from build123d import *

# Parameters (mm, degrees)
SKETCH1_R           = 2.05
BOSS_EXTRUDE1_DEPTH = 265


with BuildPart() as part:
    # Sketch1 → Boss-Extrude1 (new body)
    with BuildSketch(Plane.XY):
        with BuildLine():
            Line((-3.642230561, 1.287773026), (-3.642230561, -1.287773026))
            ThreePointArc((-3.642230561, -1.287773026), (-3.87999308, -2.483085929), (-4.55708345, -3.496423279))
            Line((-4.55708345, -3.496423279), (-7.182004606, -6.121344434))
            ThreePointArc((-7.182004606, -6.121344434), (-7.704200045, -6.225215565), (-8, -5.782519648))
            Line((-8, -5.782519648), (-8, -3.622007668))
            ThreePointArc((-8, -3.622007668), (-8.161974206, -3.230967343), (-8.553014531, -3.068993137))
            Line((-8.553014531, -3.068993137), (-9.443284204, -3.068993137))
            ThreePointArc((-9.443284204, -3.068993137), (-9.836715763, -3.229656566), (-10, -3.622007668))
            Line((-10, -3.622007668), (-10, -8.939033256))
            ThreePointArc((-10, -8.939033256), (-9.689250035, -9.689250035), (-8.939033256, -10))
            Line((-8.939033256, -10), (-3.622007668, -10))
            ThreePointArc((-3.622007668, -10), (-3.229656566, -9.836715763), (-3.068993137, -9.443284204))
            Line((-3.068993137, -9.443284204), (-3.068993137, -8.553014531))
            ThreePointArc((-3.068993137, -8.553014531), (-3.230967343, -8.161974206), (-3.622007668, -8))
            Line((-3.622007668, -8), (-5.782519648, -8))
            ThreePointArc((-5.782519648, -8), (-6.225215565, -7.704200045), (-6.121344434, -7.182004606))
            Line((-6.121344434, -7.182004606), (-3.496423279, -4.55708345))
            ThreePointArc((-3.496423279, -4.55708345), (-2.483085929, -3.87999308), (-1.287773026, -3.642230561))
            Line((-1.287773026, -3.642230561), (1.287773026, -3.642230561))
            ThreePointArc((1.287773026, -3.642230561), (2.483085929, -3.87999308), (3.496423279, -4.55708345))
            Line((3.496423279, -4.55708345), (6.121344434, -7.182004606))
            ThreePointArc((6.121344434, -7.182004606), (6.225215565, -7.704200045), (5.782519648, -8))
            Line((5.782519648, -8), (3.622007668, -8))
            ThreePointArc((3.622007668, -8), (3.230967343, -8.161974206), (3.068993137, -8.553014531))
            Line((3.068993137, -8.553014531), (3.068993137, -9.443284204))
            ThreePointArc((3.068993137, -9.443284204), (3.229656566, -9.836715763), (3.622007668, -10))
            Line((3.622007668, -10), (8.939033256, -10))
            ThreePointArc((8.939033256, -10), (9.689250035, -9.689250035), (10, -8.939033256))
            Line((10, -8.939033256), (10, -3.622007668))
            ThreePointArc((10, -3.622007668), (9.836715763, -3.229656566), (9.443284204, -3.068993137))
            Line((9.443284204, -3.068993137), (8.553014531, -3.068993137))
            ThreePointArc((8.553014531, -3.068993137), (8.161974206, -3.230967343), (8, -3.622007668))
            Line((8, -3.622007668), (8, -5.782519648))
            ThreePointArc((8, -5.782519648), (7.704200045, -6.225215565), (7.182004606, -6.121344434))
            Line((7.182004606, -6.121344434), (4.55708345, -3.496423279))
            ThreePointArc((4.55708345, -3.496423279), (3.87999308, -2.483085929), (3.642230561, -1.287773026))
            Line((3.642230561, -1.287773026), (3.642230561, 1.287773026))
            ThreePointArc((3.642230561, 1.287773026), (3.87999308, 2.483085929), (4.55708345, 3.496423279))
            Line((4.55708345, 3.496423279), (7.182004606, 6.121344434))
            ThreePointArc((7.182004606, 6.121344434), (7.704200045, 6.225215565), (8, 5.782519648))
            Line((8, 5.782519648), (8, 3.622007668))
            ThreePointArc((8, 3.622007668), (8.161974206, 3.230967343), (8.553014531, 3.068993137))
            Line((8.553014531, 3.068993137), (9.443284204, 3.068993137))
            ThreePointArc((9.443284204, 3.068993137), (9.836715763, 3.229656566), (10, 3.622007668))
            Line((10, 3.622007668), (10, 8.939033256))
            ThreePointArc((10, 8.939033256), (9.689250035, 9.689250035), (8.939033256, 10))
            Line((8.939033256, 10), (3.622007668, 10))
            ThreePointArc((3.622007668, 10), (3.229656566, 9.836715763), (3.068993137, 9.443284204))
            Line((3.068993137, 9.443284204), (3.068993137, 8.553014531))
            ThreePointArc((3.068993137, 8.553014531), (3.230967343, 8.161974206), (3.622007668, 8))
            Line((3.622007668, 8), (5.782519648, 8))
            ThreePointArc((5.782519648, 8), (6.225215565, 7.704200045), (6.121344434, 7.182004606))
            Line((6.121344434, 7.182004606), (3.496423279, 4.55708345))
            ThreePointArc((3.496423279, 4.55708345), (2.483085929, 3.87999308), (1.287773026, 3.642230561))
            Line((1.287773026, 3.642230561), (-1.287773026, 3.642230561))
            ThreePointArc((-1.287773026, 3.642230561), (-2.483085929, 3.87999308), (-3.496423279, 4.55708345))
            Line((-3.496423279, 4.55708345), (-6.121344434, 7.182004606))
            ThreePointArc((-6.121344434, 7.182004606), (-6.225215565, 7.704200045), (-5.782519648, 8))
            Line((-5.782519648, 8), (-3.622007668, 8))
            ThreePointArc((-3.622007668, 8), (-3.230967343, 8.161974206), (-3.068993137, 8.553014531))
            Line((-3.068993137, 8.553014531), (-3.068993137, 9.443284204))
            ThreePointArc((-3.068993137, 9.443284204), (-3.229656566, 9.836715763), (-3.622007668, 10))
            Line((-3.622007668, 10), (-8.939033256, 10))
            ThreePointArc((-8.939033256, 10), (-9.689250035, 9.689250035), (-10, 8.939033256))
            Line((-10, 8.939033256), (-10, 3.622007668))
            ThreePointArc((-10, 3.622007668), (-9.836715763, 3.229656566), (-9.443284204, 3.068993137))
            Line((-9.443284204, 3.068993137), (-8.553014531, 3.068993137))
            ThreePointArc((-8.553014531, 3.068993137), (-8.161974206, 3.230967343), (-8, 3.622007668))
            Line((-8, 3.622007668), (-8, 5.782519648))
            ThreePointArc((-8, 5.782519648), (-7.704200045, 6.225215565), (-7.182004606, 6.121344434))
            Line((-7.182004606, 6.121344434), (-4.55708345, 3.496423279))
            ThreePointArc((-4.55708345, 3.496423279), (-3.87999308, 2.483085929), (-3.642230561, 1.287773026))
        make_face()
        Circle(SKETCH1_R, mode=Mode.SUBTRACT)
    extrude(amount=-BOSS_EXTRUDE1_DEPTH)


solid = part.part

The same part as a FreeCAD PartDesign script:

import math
import FreeCAD as App
import Part
import Sketcher
from FreeCAD import Vector

doc = App.newDocument("Part")
params = doc.addObject("Spreadsheet::Sheet", "Params")
for row, (alias, value) in enumerate([
    ("sketch1_diameter", "4.1 mm"),
    ("pad1_length", "265 mm"),
], start=1):
    params.set(f"A{row}", alias)
    params.set(f"B{row}", "=" + value)
    params.setAlias(f"B{row}", alias)

body = doc.addObject("PartDesign::Body", "Body")

sketch1 = body.newObject("Sketcher::SketchObject", "Sketch")
sketch1.AttachmentSupport = (doc.getObject("XY_Plane"), [""])
sketch1.MapMode = "FlatFace"
sketch1.addGeometry(Part.LineSegment(Vector(-3.642231, 1.287773, 0), Vector(-3.642231, -1.287773, 0)), False)
sketch1.addGeometry(Part.ArcOfCircle(Part.Circle(Vector(-6.765734, -1.287773, 0), Vector(0, 0, 1), 3.123503), math.radians(-45), math.radians(0)), False)
sketch1.addGeometry(Part.LineSegment(Vector(-4.557083, -3.496423, 0), Vector(-7.182005, -6.121344, 0)), False)
sketch1.addGeometry(Part.ArcOfCircle(Part.Circle(Vector(-7.520829, -5.78252, 0), Vector(0, 0, 1), 0.479171), math.radians(180), math.radians(315)), False)
sketch1.addGeometry(Part.LineSegment(Vector(-8, -5.78252, 0), Vector(-8, -3.622008, 0)), False)
sketch1.addGeometry(Part.ArcOfCircle(Part.Circle(Vector(-8.553015, -3.622008, 0), Vector(0, 0, 1), 0.553015), math.radians(0), math.radians(90)), False)
sketch1.addGeometry(Part.LineSegment(Vector(-8.553015, -3.068993, 0), Vector(-9.443284, -3.068993, 0)), False)
sketch1.addGeometry(Part.ArcOfCircle(Part.Circle(Vector(-9.446973, -3.622008, 0), Vector(0, 0, 1), 0.553027), math.radians(89.617806), math.radians(180)), False)
sketch1.addGeometry(Part.LineSegment(Vector(-10, -3.622008, 0), Vector(-10, -8.939033, 0)), False)
sketch1.addGeometry(Part.ArcOfCircle(Part.Circle(Vector(-8.939033, -8.939033, 0), Vector(0, 0, 1), 1.060967), math.radians(-180), math.radians(-90)), False)
sketch1.addGeometry(Part.LineSegment(Vector(-8.939033, -10, 0), Vector(-3.622008, -10, 0)), False)
sketch1.addGeometry(Part.ArcOfCircle(Part.Circle(Vector(-3.622008, -9.446973, 0), Vector(0, 0, 1), 0.553027), math.radians(-90), math.radians(0.382194)), False)
sketch1.addGeometry(Part.LineSegment(Vector(-3.068993, -9.443284, 0), Vector(-3.068993, -8.553015, 0)), False)
sketch1.addGeometry(Part.ArcOfCircle(Part.Circle(Vector(-3.622008, -8.553015, 0), Vector(0, 0, 1), 0.553015), math.radians(0), math.radians(90)), False)
sketch1.addGeometry(Part.LineSegment(Vector(-3.622008, -8, 0), Vector(-5.78252, -8, 0)), False)
sketch1.addGeometry(Part.ArcOfCircle(Part.Circle(Vector(-5.78252, -7.520829, 0), Vector(0, 0, 1), 0.479171), math.radians(135), math.radians(270)), False)
sketch1.addGeometry(Part.LineSegment(Vector(-6.121344, -7.182005, 0), Vector(-3.496423, -4.557083, 0)), False)
sketch1.addGeometry(Part.ArcOfCircle(Part.Circle(Vector(-1.287773, -6.765734, 0), Vector(0, 0, 1), 3.123503), math.radians(90), math.radians(135)), False)
sketch1.addGeometry(Part.LineSegment(Vector(-1.287773, -3.642231, 0), Vector(1.287773, -3.642231, 0)), False)
sketch1.addGeometry(Part.ArcOfCircle(Part.Circle(Vector(1.287773, -6.765734, 0), Vector(0, 0, 1), 3.123503), math.radians(45), math.radians(90)), False)
sketch1.addGeometry(Part.LineSegment(Vector(3.496423, -4.557083, 0), Vector(6.121344, -7.182005, 0)), False)
sketch1.addGeometry(Part.ArcOfCircle(Part.Circle(Vector(5.78252, -7.520829, 0), Vector(0, 0, 1), 0.479171), math.radians(-90), math.radians(45)), False)
sketch1.addGeometry(Part.LineSegment(Vector(5.78252, -8, 0), Vector(3.622008, -8, 0)), False)
sketch1.addGeometry(Part.ArcOfCircle(Part.Circle(Vector(3.622008, -8.553015, 0), Vector(0, 0, 1), 0.553015), math.radians(90), math.radians(180)), False)
sketch1.addGeometry(Part.LineSegment(Vector(3.068993, -8.553015, 0), Vector(3.068993, -9.443284, 0)), False)
sketch1.addGeometry(Part.ArcOfCircle(Part.Circle(Vector(3.622008, -9.446973, 0), Vector(0, 0, 1), 0.553027), math.radians(179.617806), math.radians(270)), False)
sketch1.addGeometry(Part.LineSegment(Vector(3.622008, -10, 0), Vector(8.939033, -10, 0)), False)
sketch1.addGeometry(Part.ArcOfCircle(Part.Circle(Vector(8.939033, -8.939033, 0), Vector(0, 0, 1), 1.060967), math.radians(-90), math.radians(0)), False)
sketch1.addGeometry(Part.LineSegment(Vector(10, -8.939033, 0), Vector(10, -3.622008, 0)), False)
sketch1.addGeometry(Part.ArcOfCircle(Part.Circle(Vector(9.446973, -3.622008, 0), Vector(0, 0, 1), 0.553027), math.radians(0), math.radians(90.382194)), False)
sketch1.addGeometry(Part.LineSegment(Vector(9.443284, -3.068993, 0), Vector(8.553015, -3.068993, 0)), False)
sketch1.addGeometry(Part.ArcOfCircle(Part.Circle(Vector(8.553015, -3.622008, 0), Vector(0, 0, 1), 0.553015), math.radians(90), math.radians(180)), False)
sketch1.addGeometry(Part.LineSegment(Vector(8, -3.622008, 0), Vector(8, -5.78252, 0)), False)
sketch1.addGeometry(Part.ArcOfCircle(Part.Circle(Vector(7.520829, -5.78252, 0), Vector(0, 0, 1), 0.479171), math.radians(-135), math.radians(0)), False)
sketch1.addGeometry(Part.LineSegment(Vector(7.182005, -6.121344, 0), Vector(4.557083, -3.496423, 0)), False)
sketch1.addGeometry(Part.ArcOfCircle(Part.Circle(Vector(6.765734, -1.287773, 0), Vector(0, 0, 1), 3.123503), math.radians(180), math.radians(225)), False)
sketch1.addGeometry(Part.LineSegment(Vector(3.642231, -1.287773, 0), Vector(3.642231, 1.287773, 0)), False)
sketch1.addGeometry(Part.ArcOfCircle(Part.Circle(Vector(6.765734, 1.287773, 0), Vector(0, 0, 1), 3.123503), math.radians(135), math.radians(180)), False)
sketch1.addGeometry(Part.LineSegment(Vector(4.557083, 3.496423, 0), Vector(7.182005, 6.121344, 0)), False)
sketch1.addGeometry(Part.ArcOfCircle(Part.Circle(Vector(7.520829, 5.78252, 0), Vector(0, 0, 1), 0.479171), math.radians(0), math.radians(135)), False)
sketch1.addGeometry(Part.LineSegment(Vector(8, 5.78252, 0), Vector(8, 3.622008, 0)), False)
sketch1.addGeometry(Part.ArcOfCircle(Part.Circle(Vector(8.553015, 3.622008, 0), Vector(0, 0, 1), 0.553015), math.radians(180), math.radians(270)), False)
sketch1.addGeometry(Part.LineSegment(Vector(8.553015, 3.068993, 0), Vector(9.443284, 3.068993, 0)), False)
sketch1.addGeometry(Part.ArcOfCircle(Part.Circle(Vector(9.446973, 3.622008, 0), Vector(0, 0, 1), 0.553027), math.radians(-90.382194), math.radians(0)), False)
sketch1.addGeometry(Part.LineSegment(Vector(10, 3.622008, 0), Vector(10, 8.939033, 0)), False)
sketch1.addGeometry(Part.ArcOfCircle(Part.Circle(Vector(8.939033, 8.939033, 0), Vector(0, 0, 1), 1.060967), math.radians(0), math.radians(90)), False)
sketch1.addGeometry(Part.LineSegment(Vector(8.939033, 10, 0), Vector(3.622008, 10, 0)), False)
sketch1.addGeometry(Part.ArcOfCircle(Part.Circle(Vector(3.622008, 9.446973, 0), Vector(0, 0, 1), 0.553027), math.radians(90), math.radians(180.382194)), False)
sketch1.addGeometry(Part.LineSegment(Vector(3.068993, 9.443284, 0), Vector(3.068993, 8.553015, 0)), False)
sketch1.addGeometry(Part.ArcOfCircle(Part.Circle(Vector(3.622008, 8.553015, 0), Vector(0, 0, 1), 0.553015), math.radians(180), math.radians(270)), False)
sketch1.addGeometry(Part.LineSegment(Vector(3.622008, 8, 0), Vector(5.78252, 8, 0)), False)
sketch1.addGeometry(Part.ArcOfCircle(Part.Circle(Vector(5.78252, 7.520829, 0), Vector(0, 0, 1), 0.479171), math.radians(-45), math.radians(90)), False)
sketch1.addGeometry(Part.LineSegment(Vector(6.121344, 7.182005, 0), Vector(3.496423, 4.557083, 0)), False)
sketch1.addGeometry(Part.ArcOfCircle(Part.Circle(Vector(1.287773, 6.765734, 0), Vector(0, 0, 1), 3.123503), math.radians(-90), math.radians(-45)), False)
sketch1.addGeometry(Part.LineSegment(Vector(1.287773, 3.642231, 0), Vector(-1.287773, 3.642231, 0)), False)
sketch1.addGeometry(Part.ArcOfCircle(Part.Circle(Vector(-1.287773, 6.765734, 0), Vector(0, 0, 1), 3.123503), math.radians(-135), math.radians(-90)), False)
sketch1.addGeometry(Part.LineSegment(Vector(-3.496423, 4.557083, 0), Vector(-6.121344, 7.182005, 0)), False)
sketch1.addGeometry(Part.ArcOfCircle(Part.Circle(Vector(-5.78252, 7.520829, 0), Vector(0, 0, 1), 0.479171), math.radians(90), math.radians(225)), False)
sketch1.addGeometry(Part.LineSegment(Vector(-5.78252, 8, 0), Vector(-3.622008, 8, 0)), False)
sketch1.addGeometry(Part.ArcOfCircle(Part.Circle(Vector(-3.622008, 8.553015, 0), Vector(0, 0, 1), 0.553015), math.radians(-90), math.radians(0)), False)
sketch1.addGeometry(Part.LineSegment(Vector(-3.068993, 8.553015, 0), Vector(-3.068993, 9.443284, 0)), False)
sketch1.addGeometry(Part.ArcOfCircle(Part.Circle(Vector(-3.622008, 9.446973, 0), Vector(0, 0, 1), 0.553027), math.radians(-0.382194), math.radians(90)), False)
sketch1.addGeometry(Part.LineSegment(Vector(-3.622008, 10, 0), Vector(-8.939033, 10, 0)), False)
sketch1.addGeometry(Part.ArcOfCircle(Part.Circle(Vector(-8.939033, 8.939033, 0), Vector(0, 0, 1), 1.060967), math.radians(90), math.radians(180)), False)
sketch1.addGeometry(Part.LineSegment(Vector(-10, 8.939033, 0), Vector(-10, 3.622008, 0)), False)
sketch1.addGeometry(Part.ArcOfCircle(Part.Circle(Vector(-9.446973, 3.622008, 0), Vector(0, 0, 1), 0.553027), math.radians(180), math.radians(270.382194)), False)
sketch1.addGeometry(Part.LineSegment(Vector(-9.443284, 3.068993, 0), Vector(-8.553015, 3.068993, 0)), False)
sketch1.addGeometry(Part.ArcOfCircle(Part.Circle(Vector(-8.553015, 3.622008, 0), Vector(0, 0, 1), 0.553015), math.radians(-90), math.radians(0)), False)
sketch1.addGeometry(Part.LineSegment(Vector(-8, 3.622008, 0), Vector(-8, 5.78252, 0)), False)
sketch1.addGeometry(Part.ArcOfCircle(Part.Circle(Vector(-7.520829, 5.78252, 0), Vector(0, 0, 1), 0.479171), math.radians(45), math.radians(180)), False)
sketch1.addGeometry(Part.LineSegment(Vector(-7.182005, 6.121344, 0), Vector(-4.557083, 3.496423, 0)), False)
sketch1.addGeometry(Part.ArcOfCircle(Part.Circle(Vector(-6.765734, 1.287773, 0), Vector(0, 0, 1), 3.123503), math.radians(0), math.radians(45)), False)
sketch1.addGeometry(Part.Circle(Vector(0, 0, 0), Vector(0, 0, 1), 2.05), False)
sketch1.addConstraint(Sketcher.Constraint("Tangent", 0, 2, 1, 2))
sketch1.addConstraint(Sketcher.Constraint("Tangent", 1, 1, 2, 1))
sketch1.addConstraint(Sketcher.Constraint("Tangent", 2, 2, 3, 2))
sketch1.addConstraint(Sketcher.Constraint("Tangent", 3, 1, 4, 1))
sketch1.addConstraint(Sketcher.Constraint("Tangent", 4, 2, 5, 1))
sketch1.addConstraint(Sketcher.Constraint("Tangent", 5, 2, 6, 1))
sketch1.addConstraint(Sketcher.Constraint("Coincident", 6, 2, 7, 1))
sketch1.addConstraint(Sketcher.Constraint("Tangent", 7, 2, 8, 1))
sketch1.addConstraint(Sketcher.Constraint("Tangent", 8, 2, 9, 1))
sketch1.addConstraint(Sketcher.Constraint("Tangent", 9, 2, 10, 1))
sketch1.addConstraint(Sketcher.Constraint("Tangent", 10, 2, 11, 1))
sketch1.addConstraint(Sketcher.Constraint("Coincident", 11, 2, 12, 1))
sketch1.addConstraint(Sketcher.Constraint("Tangent", 12, 2, 13, 1))
sketch1.addConstraint(Sketcher.Constraint("Tangent", 13, 2, 14, 1))
sketch1.addConstraint(Sketcher.Constraint("Tangent", 14, 2, 15, 2))
sketch1.addConstraint(Sketcher.Constraint("Tangent", 15, 1, 16, 1))
sketch1.addConstraint(Sketcher.Constraint("Tangent", 16, 2, 17, 2))
sketch1.addConstraint(Sketcher.Constraint("Tangent", 17, 1, 18, 1))
sketch1.addConstraint(Sketcher.Constraint("Tangent", 18, 2, 19, 2))
sketch1.addConstraint(Sketcher.Constraint("Tangent", 19, 1, 20, 1))
sketch1.addConstraint(Sketcher.Constraint("Tangent", 20, 2, 21, 2))
sketch1.addConstraint(Sketcher.Constraint("Tangent", 21, 1, 22, 1))
sketch1.addConstraint(Sketcher.Constraint("Tangent", 22, 2, 23, 1))
sketch1.addConstraint(Sketcher.Constraint("Tangent", 23, 2, 24, 1))
sketch1.addConstraint(Sketcher.Constraint("Coincident", 24, 2, 25, 1))
sketch1.addConstraint(Sketcher.Constraint("Tangent", 25, 2, 26, 1))
sketch1.addConstraint(Sketcher.Constraint("Tangent", 26, 2, 27, 1))
sketch1.addConstraint(Sketcher.Constraint("Tangent", 27, 2, 28, 1))
sketch1.addConstraint(Sketcher.Constraint("Tangent", 28, 2, 29, 1))
sketch1.addConstraint(Sketcher.Constraint("Coincident", 29, 2, 30, 1))
sketch1.addConstraint(Sketcher.Constraint("Tangent", 30, 2, 31, 1))
sketch1.addConstraint(Sketcher.Constraint("Tangent", 31, 2, 32, 1))
sketch1.addConstraint(Sketcher.Constraint("Tangent", 32, 2, 33, 2))
sketch1.addConstraint(Sketcher.Constraint("Tangent", 33, 1, 34, 1))
sketch1.addConstraint(Sketcher.Constraint("Tangent", 34, 2, 35, 2))
sketch1.addConstraint(Sketcher.Constraint("Tangent", 35, 1, 36, 1))
sketch1.addConstraint(Sketcher.Constraint("Tangent", 36, 2, 37, 2))
sketch1.addConstraint(Sketcher.Constraint("Tangent", 37, 1, 38, 1))
sketch1.addConstraint(Sketcher.Constraint("Tangent", 38, 2, 39, 2))
sketch1.addConstraint(Sketcher.Constraint("Tangent", 39, 1, 40, 1))
sketch1.addConstraint(Sketcher.Constraint("Tangent", 40, 2, 41, 1))
sketch1.addConstraint(Sketcher.Constraint("Tangent", 41, 2, 42, 1))
sketch1.addConstraint(Sketcher.Constraint("Coincident", 42, 2, 43, 1))
sketch1.addConstraint(Sketcher.Constraint("Tangent", 43, 2, 44, 1))
sketch1.addConstraint(Sketcher.Constraint("Tangent", 44, 2, 45, 1))
sketch1.addConstraint(Sketcher.Constraint("Tangent", 45, 2, 46, 1))
sketch1.addConstraint(Sketcher.Constraint("Tangent", 46, 2, 47, 1))
sketch1.addConstraint(Sketcher.Constraint("Coincident", 47, 2, 48, 1))
sketch1.addConstraint(Sketcher.Constraint("Tangent", 48, 2, 49, 1))
sketch1.addConstraint(Sketcher.Constraint("Tangent", 49, 2, 50, 1))
sketch1.addConstraint(Sketcher.Constraint("Tangent", 50, 2, 51, 2))
sketch1.addConstraint(Sketcher.Constraint("Tangent", 51, 1, 52, 1))
sketch1.addConstraint(Sketcher.Constraint("Tangent", 52, 2, 53, 2))
sketch1.addConstraint(Sketcher.Constraint("Tangent", 53, 1, 54, 1))
sketch1.addConstraint(Sketcher.Constraint("Tangent", 54, 2, 55, 2))
sketch1.addConstraint(Sketcher.Constraint("Tangent", 55, 1, 56, 1))
sketch1.addConstraint(Sketcher.Constraint("Tangent", 56, 2, 57, 2))
sketch1.addConstraint(Sketcher.Constraint("Tangent", 57, 1, 58, 1))
sketch1.addConstraint(Sketcher.Constraint("Tangent", 58, 2, 59, 1))
sketch1.addConstraint(Sketcher.Constraint("Tangent", 59, 2, 60, 1))
sketch1.addConstraint(Sketcher.Constraint("Coincident", 60, 2, 61, 1))
sketch1.addConstraint(Sketcher.Constraint("Tangent", 61, 2, 62, 1))
sketch1.addConstraint(Sketcher.Constraint("Tangent", 62, 2, 63, 1))
sketch1.addConstraint(Sketcher.Constraint("Tangent", 63, 2, 64, 1))
sketch1.addConstraint(Sketcher.Constraint("Tangent", 64, 2, 65, 1))
sketch1.addConstraint(Sketcher.Constraint("Coincident", 65, 2, 66, 1))
sketch1.addConstraint(Sketcher.Constraint("Tangent", 66, 2, 67, 1))
sketch1.addConstraint(Sketcher.Constraint("Tangent", 67, 2, 68, 1))
sketch1.addConstraint(Sketcher.Constraint("Tangent", 68, 2, 69, 2))
sketch1.addConstraint(Sketcher.Constraint("Tangent", 69, 1, 70, 1))
sketch1.addConstraint(Sketcher.Constraint("Tangent", 70, 2, 71, 2))
sketch1.addConstraint(Sketcher.Constraint("Tangent", 71, 1, 0, 1))
sketch1.addConstraint(Sketcher.Constraint("Vertical", 0))
sketch1.addConstraint(Sketcher.Constraint("Vertical", 4))
sketch1.addConstraint(Sketcher.Constraint("Horizontal", 6))
sketch1.addConstraint(Sketcher.Constraint("Vertical", 8))
sketch1.addConstraint(Sketcher.Constraint("Horizontal", 10))
sketch1.addConstraint(Sketcher.Constraint("Vertical", 12))
sketch1.addConstraint(Sketcher.Constraint("Horizontal", 14))
sketch1.addConstraint(Sketcher.Constraint("Horizontal", 18))
sketch1.addConstraint(Sketcher.Constraint("Horizontal", 22))
sketch1.addConstraint(Sketcher.Constraint("Vertical", 24))
sketch1.addConstraint(Sketcher.Constraint("Horizontal", 26))
sketch1.addConstraint(Sketcher.Constraint("Vertical", 28))
sketch1.addConstraint(Sketcher.Constraint("Horizontal", 30))
sketch1.addConstraint(Sketcher.Constraint("Vertical", 32))
sketch1.addConstraint(Sketcher.Constraint("Vertical", 36))
sketch1.addConstraint(Sketcher.Constraint("Vertical", 40))
sketch1.addConstraint(Sketcher.Constraint("Horizontal", 42))
sketch1.addConstraint(Sketcher.Constraint("Vertical", 44))
sketch1.addConstraint(Sketcher.Constraint("Horizontal", 46))
sketch1.addConstraint(Sketcher.Constraint("Vertical", 48))
sketch1.addConstraint(Sketcher.Constraint("Horizontal", 50))
sketch1.addConstraint(Sketcher.Constraint("Horizontal", 54))
sketch1.addConstraint(Sketcher.Constraint("Horizontal", 58))
sketch1.addConstraint(Sketcher.Constraint("Vertical", 60))
sketch1.addConstraint(Sketcher.Constraint("Horizontal", 62))
sketch1.addConstraint(Sketcher.Constraint("Vertical", 64))
sketch1.addConstraint(Sketcher.Constraint("Horizontal", 66))
sketch1.addConstraint(Sketcher.Constraint("Vertical", 68))
sketch1.addConstraint(Sketcher.Constraint("Coincident", 72, 3, -1, 1))
sketch1.addConstraint(Sketcher.Constraint("Equal", 7, 11))
sketch1.addConstraint(Sketcher.Constraint("Equal", 5, 13))
sketch1.addConstraint(Sketcher.Constraint("Equal", 3, 15))
sketch1.addConstraint(Sketcher.Constraint("Equal", 1, 17))
sketch1.addConstraint(Sketcher.Constraint("Equal", 17, 19))
sketch1.addConstraint(Sketcher.Constraint("Equal", 15, 21))
sketch1.addConstraint(Sketcher.Constraint("Equal", 13, 23))
sketch1.addConstraint(Sketcher.Constraint("Equal", 11, 25))
sketch1.addConstraint(Sketcher.Constraint("Equal", 9, 27))
sketch1.addConstraint(Sketcher.Constraint("Equal", 25, 29))
sketch1.addConstraint(Sketcher.Constraint("Equal", 23, 31))
sketch1.addConstraint(Sketcher.Constraint("Equal", 21, 33))
sketch1.addConstraint(Sketcher.Constraint("Equal", 19, 35))
sketch1.addConstraint(Sketcher.Constraint("Equal", 35, 37))
sketch1.addConstraint(Sketcher.Constraint("Equal", 33, 39))
sketch1.addConstraint(Sketcher.Constraint("Equal", 31, 41))
sketch1.addConstraint(Sketcher.Constraint("Equal", 29, 43))
sketch1.addConstraint(Sketcher.Constraint("Equal", 27, 45))
sketch1.addConstraint(Sketcher.Constraint("Equal", 43, 47))
sketch1.addConstraint(Sketcher.Constraint("Equal", 41, 49))
sketch1.addConstraint(Sketcher.Constraint("Equal", 39, 51))
sketch1.addConstraint(Sketcher.Constraint("Equal", 37, 53))
sketch1.addConstraint(Sketcher.Constraint("Equal", 53, 55))
sketch1.addConstraint(Sketcher.Constraint("Equal", 51, 57))
sketch1.addConstraint(Sketcher.Constraint("Equal", 49, 59))
sketch1.addConstraint(Sketcher.Constraint("Equal", 47, 61))
sketch1.addConstraint(Sketcher.Constraint("Equal", 45, 63))
sketch1.addConstraint(Sketcher.Constraint("Equal", 61, 65))
sketch1.addConstraint(Sketcher.Constraint("Equal", 59, 67))
sketch1.addConstraint(Sketcher.Constraint("Equal", 57, 69))
sketch1.addConstraint(Sketcher.Constraint("Equal", 55, 71))
sketch1.addConstraint(Sketcher.Constraint("Symmetric", 1, 3, 37, 3, -1, 1))
sketch1.addConstraint(Sketcher.Constraint("Symmetric", 3, 3, 39, 3, -1, 1))
sketch1.addConstraint(Sketcher.Constraint("Symmetric", 7, 3, 43, 3, -1, 1))
sketch1.addConstraint(Sketcher.Constraint("Symmetric", 11, 3, 47, 3, -1, 1))
sketch1.addConstraint(Sketcher.Constraint("Symmetric", 13, 3, 49, 3, -1, 1))
sketch1.addConstraint(Sketcher.Constraint("Symmetric", 17, 3, 53, 3, -1, 1))
sketch1.addConstraint(Sketcher.Constraint("Symmetric", 21, 3, 57, 3, -1, 1))
sketch1.addConstraint(Sketcher.Constraint("Symmetric", 25, 3, 61, 3, -1, 1))
sketch1.addConstraint(Sketcher.Constraint("Symmetric", 29, 3, 65, 3, -1, 1))
sketch1.addConstraint(Sketcher.Constraint("Symmetric", 31, 3, 67, 3, -1, 1))
sketch1.addConstraint(Sketcher.Constraint("Symmetric", 33, 1, 69, 1, -1, 1))
sketch1.addConstraint(Sketcher.Constraint("Symmetric", 15, 3, 21, 3, -2))
sketch1.addConstraint(Sketcher.Constraint("Symmetric", 11, 3, 25, 3, -2))
sketch1.addConstraint(Sketcher.Constraint("Symmetric", 7, 3, 29, 3, -2))
sketch1.addConstraint(Sketcher.Constraint("Symmetric", 5, 3, 31, 3, -2))
sketch1.addConstraint(Sketcher.Constraint("Symmetric", 2, 2, 33, 1, -2))
sketch1.addConstraint(Sketcher.Constraint("Symmetric", 52, 2, 55, 1, -2))
sketch1.addConstraint(Sketcher.Constraint("Parallel", 2, 16))
sketch1.addConstraint(Sketcher.Constraint("Perpendicular", 16, 20))
sketch1.addConstraint(Sketcher.Constraint("Parallel", 20, 34))
sketch1.addConstraint(Sketcher.Constraint("Horizontal", 5, 3, 7, 3))
sketch1.addConstraint(Sketcher.Constraint("Horizontal", 41, 3, 43, 3))
sketch1.addConstraint(Sketcher.Constraint("Horizontal", 11, 2, 24, 2))
sketch1.addConstraint(Sketcher.Constraint("Horizontal", 47, 2, 60, 2))
sketch1.addConstraint(Sketcher.Constraint("Equal", 54, 0))
sketch1.addConstraint(Sketcher.Constraint("Equal", 58, 4))
sketch1.addConstraint(Sketcher.Constraint("Equal", 62, 8))
sketch1.addConstraint(Sketcher.Constraint("Equal", 66, 12))
sketch1.addConstraint(Sketcher.Constraint("Equal", 2, 16))
sketch1.addConstraint(Sketcher.Constraint("Diameter", 72, 4.1))
sketch1.addConstraint(Sketcher.Constraint("DistanceX", 3, 1, -1, 1, 8.0))
sketch1.addConstraint(Sketcher.Constraint("DistanceX", 7, 2, -1, 1, 10.0))
sketch1.addConstraint(Sketcher.Constraint("DistanceY", 13, 2, -1, 1, 8.0))
sketch1.addConstraint(Sketcher.Constraint("Radius", 3, 0.479171))
sketch1.addConstraint(Sketcher.Constraint("Radius", 1, 3.123503))
sketch1.addConstraint(Sketcher.Constraint("Radius", 5, 0.553015))
sketch1.addConstraint(Sketcher.Constraint("Radius", 9, 1.060967))
sketch1.addConstraint(Sketcher.Constraint("Distance", 2, 3.712199))
sketch1.addConstraint(Sketcher.Constraint("DistanceX", 6, 2, 6, 1, 0.89027))
sketch1.addConstraint(Sketcher.Constraint("DistanceX", 14, 2, 14, 1, 2.160512))
sketch1.addConstraint(Sketcher.Constraint("DistanceX", 10, 1, 10, 2, 5.317026))
sketch1.setExpression("Constraints[161]", "Params.sketch1_diameter")
pad1 = body.newObject("PartDesign::Pad", "Pad")
pad1.Profile = sketch1
pad1.setExpression("Length", "Params.pad1_length")
pad1.Reversed = True

doc.recompute()
